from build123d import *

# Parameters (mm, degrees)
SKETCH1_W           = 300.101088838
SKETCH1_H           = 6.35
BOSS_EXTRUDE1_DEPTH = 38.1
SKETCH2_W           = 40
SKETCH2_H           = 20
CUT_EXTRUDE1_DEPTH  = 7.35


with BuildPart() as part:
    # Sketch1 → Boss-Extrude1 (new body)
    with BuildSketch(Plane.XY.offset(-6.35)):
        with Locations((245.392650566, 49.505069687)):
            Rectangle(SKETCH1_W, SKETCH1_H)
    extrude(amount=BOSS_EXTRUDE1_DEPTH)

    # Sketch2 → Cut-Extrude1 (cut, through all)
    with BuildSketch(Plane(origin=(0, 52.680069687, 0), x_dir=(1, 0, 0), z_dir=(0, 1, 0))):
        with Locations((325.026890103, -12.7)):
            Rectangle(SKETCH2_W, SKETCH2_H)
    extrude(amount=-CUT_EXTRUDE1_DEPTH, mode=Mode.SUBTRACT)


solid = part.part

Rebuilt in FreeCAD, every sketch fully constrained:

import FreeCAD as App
import Part
import Sketcher
from FreeCAD import Vector


def add_polygon(sketch, points):
    """Adds a closed chain of lines whose ends are joined by coincident constraints."""
    first, n = sketch.GeometryCount, len(points)
    for a, b in zip(points, points[1:] + points[:1]):
        sketch.addGeometry(Part.LineSegment(App.Vector(*a, 0), App.Vector(*b, 0)), False)
    for i in range(n):
        sketch.addConstraint(Sketcher.Constraint("Coincident", first + i, 2, first + (i + 1) % n, 1))

doc = App.newDocument("Part")
body = doc.addObject("PartDesign::Body", "Body")

# Sketch on XY plane
sketch1 = body.newObject("Sketcher::SketchObject", "Sketch")
sketch1.AttachmentSupport = (doc.getObject("XY_Plane"), [""])
sketch1.MapMode = "FlatFace"
sketch1.AttachmentOffset = App.Placement(Vector(0, 0, -6.35), App.Rotation())
add_polygon(sketch1, [(95.342106, 52.68007), (95.342106, 46.33007), (395.443195, 46.33007), (395.443195, 52.68007)])  # lines 0-3
sketch1.addConstraint(Sketcher.Constraint("Vertical", 0))
sketch1.addConstraint(Sketcher.Constraint("Horizontal", 1))
sketch1.addConstraint(Sketcher.Constraint("Vertical", 2))
sketch1.addConstraint(Sketcher.Constraint("Horizontal", 3))
sketch1.addConstraint(Sketcher.Constraint("DistanceY", 0, 2, 0, 1, 6.35))
sketch1.addConstraint(Sketcher.Constraint("DistanceX", 1, 1, 1, 2, 300.101089))
sketch1.addConstraint(Sketcher.Constraint("DistanceY", -1, 1, 0, 2, 46.33007))
sketch1.addConstraint(Sketcher.Constraint("DistanceX", -1, 1, 0, 2, 95.342106))
pad1 = body.newObject("PartDesign::Pad", "Pad")
pad1.Profile = sketch1
pad1.Length = 38.1

# Sketch on XZ plane
sketch2 = body.newObject("Sketcher::SketchObject", "Sketch001")
sketch2.AttachmentSupport = (doc.getObject("XZ_Plane"), [""])
sketch2.MapMode = "FlatFace"
sketch2.AttachmentOffset = App.Placement(Vector(0, 0, -52.68007), App.Rotation())
add_polygon(sketch2, [(305.02689, 2.7), (305.02689, 22.7), (345.02689, 22.7), (345.02689, 2.7)])  # lines 0-3
sketch2.addConstraint(Sketcher.Constraint("Vertical", 0))
sketch2.addConstraint(Sketcher.Constraint("Horizontal", 1))
sketch2.addConstraint(Sketcher.Constraint("Vertical", 2))
sketch2.addConstraint(Sketcher.Constraint("Horizontal", 3))
sketch2.addConstraint(Sketcher.Constraint("DistanceX", 1, 1, 1, 2, 40.0))
sketch2.addConstraint(Sketcher.Constraint("DistanceY", 0, 1, 0, 2, 20.0))
sketch2.addConstraint(Sketcher.Constraint("DistanceY", -1, 1, 0, 2, 22.7))
sketch2.addConstraint(Sketcher.Constraint("DistanceX", -1, 1, 0, 2, 305.02689))
pocket1 = body.newObject("PartDesign::Pocket", "Pocket")
pocket1.Profile = sketch2
pocket1.Type = "ThroughAll"
pocket1.Reversed = True

doc.recompute()
